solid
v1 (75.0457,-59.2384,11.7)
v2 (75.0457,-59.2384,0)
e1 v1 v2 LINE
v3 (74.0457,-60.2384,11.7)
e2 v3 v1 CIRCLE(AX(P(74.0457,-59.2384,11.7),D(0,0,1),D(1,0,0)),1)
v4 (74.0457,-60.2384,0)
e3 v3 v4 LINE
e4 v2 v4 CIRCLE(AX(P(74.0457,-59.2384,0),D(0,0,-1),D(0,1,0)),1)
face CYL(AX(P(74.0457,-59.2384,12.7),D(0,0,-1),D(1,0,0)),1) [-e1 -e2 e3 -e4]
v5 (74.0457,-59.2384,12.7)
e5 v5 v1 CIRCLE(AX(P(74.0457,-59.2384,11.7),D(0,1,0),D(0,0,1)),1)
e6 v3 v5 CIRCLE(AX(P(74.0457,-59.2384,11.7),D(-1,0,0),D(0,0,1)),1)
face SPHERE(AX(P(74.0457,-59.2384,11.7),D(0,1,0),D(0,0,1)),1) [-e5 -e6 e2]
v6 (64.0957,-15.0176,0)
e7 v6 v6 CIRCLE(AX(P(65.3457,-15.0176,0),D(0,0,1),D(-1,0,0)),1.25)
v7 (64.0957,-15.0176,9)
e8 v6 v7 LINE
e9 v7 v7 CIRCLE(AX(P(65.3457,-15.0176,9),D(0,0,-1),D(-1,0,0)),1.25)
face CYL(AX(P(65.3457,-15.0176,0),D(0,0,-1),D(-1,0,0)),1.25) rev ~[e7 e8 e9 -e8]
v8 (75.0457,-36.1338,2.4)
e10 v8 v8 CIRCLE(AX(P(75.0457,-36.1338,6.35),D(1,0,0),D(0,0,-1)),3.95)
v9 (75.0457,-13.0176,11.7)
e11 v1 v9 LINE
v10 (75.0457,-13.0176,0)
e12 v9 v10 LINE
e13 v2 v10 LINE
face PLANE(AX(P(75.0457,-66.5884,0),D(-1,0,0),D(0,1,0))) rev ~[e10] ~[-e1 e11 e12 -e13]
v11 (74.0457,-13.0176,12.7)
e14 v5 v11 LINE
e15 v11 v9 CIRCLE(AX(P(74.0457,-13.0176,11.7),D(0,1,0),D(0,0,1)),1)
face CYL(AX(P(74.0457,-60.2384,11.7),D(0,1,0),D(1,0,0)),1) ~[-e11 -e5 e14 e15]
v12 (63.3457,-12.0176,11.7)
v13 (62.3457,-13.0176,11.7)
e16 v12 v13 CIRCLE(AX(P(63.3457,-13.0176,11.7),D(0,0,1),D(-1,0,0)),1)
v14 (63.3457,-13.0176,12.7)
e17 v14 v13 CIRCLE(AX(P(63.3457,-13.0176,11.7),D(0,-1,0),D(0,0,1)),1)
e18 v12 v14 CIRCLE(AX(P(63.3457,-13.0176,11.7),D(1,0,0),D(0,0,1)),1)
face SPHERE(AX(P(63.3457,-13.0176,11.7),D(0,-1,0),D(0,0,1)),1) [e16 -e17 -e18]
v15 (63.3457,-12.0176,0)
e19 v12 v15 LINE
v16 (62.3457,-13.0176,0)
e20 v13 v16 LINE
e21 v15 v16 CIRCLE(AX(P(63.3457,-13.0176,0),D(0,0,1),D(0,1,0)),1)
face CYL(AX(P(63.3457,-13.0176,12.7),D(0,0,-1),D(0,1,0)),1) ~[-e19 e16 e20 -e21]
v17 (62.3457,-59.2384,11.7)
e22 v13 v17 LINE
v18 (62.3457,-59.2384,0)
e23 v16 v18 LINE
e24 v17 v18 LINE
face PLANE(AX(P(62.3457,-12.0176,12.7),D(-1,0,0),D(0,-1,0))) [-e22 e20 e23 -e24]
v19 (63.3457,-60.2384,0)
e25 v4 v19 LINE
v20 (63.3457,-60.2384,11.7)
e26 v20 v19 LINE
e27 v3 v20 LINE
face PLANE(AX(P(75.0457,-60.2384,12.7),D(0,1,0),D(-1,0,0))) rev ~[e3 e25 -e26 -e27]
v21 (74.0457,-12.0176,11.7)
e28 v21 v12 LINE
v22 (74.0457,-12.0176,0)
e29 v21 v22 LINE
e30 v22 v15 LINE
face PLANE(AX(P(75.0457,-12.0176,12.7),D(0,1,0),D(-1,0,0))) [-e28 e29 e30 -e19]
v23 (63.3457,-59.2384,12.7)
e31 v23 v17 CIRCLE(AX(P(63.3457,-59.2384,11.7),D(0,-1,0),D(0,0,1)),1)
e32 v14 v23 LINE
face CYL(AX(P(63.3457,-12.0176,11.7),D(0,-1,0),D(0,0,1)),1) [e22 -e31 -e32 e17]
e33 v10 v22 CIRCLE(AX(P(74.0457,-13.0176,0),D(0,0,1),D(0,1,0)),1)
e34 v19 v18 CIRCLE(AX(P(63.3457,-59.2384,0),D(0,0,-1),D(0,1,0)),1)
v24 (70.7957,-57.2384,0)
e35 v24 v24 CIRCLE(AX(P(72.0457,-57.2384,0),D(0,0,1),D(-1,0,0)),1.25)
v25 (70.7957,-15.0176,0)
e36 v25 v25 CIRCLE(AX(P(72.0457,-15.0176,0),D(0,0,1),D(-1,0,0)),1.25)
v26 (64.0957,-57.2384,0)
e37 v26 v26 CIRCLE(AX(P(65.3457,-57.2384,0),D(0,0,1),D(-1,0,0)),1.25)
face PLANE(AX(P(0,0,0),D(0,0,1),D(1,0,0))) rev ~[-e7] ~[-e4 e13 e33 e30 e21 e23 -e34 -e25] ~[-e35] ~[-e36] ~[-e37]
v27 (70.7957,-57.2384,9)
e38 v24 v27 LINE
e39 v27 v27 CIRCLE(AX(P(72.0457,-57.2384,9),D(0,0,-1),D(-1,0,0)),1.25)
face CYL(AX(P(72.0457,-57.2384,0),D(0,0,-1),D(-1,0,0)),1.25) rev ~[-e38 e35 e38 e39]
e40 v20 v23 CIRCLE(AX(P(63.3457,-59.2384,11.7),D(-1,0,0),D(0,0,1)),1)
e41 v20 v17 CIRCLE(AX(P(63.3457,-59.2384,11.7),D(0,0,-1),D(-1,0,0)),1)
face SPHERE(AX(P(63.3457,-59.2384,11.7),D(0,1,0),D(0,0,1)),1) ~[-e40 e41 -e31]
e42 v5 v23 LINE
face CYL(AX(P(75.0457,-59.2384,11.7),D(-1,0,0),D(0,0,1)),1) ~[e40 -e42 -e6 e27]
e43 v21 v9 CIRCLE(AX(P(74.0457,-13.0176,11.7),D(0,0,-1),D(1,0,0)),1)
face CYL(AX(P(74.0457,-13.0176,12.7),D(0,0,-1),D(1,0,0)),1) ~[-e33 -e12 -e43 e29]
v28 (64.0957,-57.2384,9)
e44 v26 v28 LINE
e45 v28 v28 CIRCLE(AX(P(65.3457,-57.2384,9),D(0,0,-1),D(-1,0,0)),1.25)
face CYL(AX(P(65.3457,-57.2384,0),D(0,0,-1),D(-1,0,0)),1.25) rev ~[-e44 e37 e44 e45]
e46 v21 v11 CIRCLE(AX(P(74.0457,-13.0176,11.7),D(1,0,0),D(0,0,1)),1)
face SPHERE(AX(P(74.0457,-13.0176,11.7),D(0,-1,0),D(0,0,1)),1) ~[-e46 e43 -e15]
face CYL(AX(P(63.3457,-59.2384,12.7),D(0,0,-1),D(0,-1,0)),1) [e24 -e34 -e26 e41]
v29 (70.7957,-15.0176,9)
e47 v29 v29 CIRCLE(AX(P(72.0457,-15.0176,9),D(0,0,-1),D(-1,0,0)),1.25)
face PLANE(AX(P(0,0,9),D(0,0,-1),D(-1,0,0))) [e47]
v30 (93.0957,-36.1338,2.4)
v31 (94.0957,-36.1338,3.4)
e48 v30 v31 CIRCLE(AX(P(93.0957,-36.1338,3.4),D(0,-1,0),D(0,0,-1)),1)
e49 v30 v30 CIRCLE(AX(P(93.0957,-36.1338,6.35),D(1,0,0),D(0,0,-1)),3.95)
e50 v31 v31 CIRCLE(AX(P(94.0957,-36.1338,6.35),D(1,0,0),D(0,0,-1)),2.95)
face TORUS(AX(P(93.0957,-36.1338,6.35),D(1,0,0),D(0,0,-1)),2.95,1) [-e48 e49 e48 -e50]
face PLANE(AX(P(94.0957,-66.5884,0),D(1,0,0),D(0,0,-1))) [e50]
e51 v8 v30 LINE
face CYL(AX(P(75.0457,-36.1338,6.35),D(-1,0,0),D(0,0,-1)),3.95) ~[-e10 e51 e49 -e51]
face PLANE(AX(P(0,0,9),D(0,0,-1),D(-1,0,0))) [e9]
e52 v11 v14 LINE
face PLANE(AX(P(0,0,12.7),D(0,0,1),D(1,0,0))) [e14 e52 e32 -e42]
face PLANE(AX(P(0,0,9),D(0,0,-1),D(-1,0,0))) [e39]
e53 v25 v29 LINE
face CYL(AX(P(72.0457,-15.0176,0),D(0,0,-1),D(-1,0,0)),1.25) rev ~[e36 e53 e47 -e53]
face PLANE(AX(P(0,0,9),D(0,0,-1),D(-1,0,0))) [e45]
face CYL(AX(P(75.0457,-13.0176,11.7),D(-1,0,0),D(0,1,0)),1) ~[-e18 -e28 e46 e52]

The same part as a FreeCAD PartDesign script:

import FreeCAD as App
import Part
import Sketcher
Q = App.Units.Quantity


def edges_at(feature, points):
    """Names of the edges that pass closest to the given points."""
    edges = feature.Shape.Edges
    near = lambda p: min(range(len(edges)), key=lambda i: edges[i].distToShape(Part.Vertex(*p))[0])
    return sorted({f"Edge{near(p) + 1}" for p in points})

doc = App.newDocument("Part")
params = doc.addObject("Spreadsheet::Sheet", "Params")
for row, (alias, value) in enumerate([
    ("sketch1_width", "19.05 mm"),
    ("pad1_length", "12.7 mm"),
    ("sketch2_diameter", "7.9 mm"),
    ("pad2_length", "19.05 mm"),
    ("sketch3_width", "12.7 mm"),
    ("sketch3_width2", "19.05 mm"),
    ("sketch3_height", "6.35 mm"),
    ("pocket1_length", "2540 mm"),
    ("fillet_radius", "1 mm"),
    ("fillet2_radius", "1 mm"),
    ("sketch4_diameter", "2.5 mm"),
    ("pocket2_length", "9 mm"),
], start=1):
    params.set(f"A{row}", alias)
    params.set(f"B{row}", "=" + value)
    params.setAlias(f"B{row}", alias)

body = doc.addObject("PartDesign::Body", "Body")

# Sketch on XY plane
sketch1 = body.newObject("Sketcher::SketchObject", "Sketch")
sketch1.AttachmentSupport = (doc.getObject("XY_Plane"), [""])
sketch1.MapMode = "FlatFace"
sketch1.addGeometry([
    Part.LineSegment(App.Vector(75, -67, 0), App.Vector(75, -6, 0)),
    Part.LineSegment(App.Vector(75, -6, 0), App.Vector(56, -6, 0)),
    Part.LineSegment(App.Vector(56, -6, 0), App.Vector(56, -67, 0)),
    Part.LineSegment(App.Vector(56, -67, 0), App.Vector(75, -67, 0)),
], False)
sketch1.addConstraint([
    Sketcher.Constraint("Coincident", 0, 2, 1, 1),
    Sketcher.Constraint("Coincident", 1, 2, 2, 1),
    Sketcher.Constraint("Coincident", 2, 2, 3, 1),
    Sketcher.Constraint("Coincident", 3, 2, 0, 1),
    Sketcher.Constraint("Vertical", 0),
    Sketcher.Constraint("Horizontal", 1),
    Sketcher.Constraint("Vertical", 2),
    Sketcher.Constraint("Horizontal", 3),
    Sketcher.Constraint("DistanceX", 1, 2, 1, 1, Q("19.05 mm")),
    Sketcher.Constraint("DistanceY", 0, 1, 0, 2, Q("60.9208 mm")),
    Sketcher.Constraint("DistanceX", -1, 1, 0, 2, Q("75.0457 mm")),
    Sketcher.Constraint("DistanceY", 0, 2, -1, 1, Q("5.6676 mm")),
])
sketch1.setExpression("Constraints[8]", "Params.sketch1_width")
pad1 = body.newObject("PartDesign::Pad", "Pad")
pad1.Profile = sketch1
pad1.setExpression("Length", "Params.pad1_length")

# Sketch on YZ plane
sketch2 = body.newObject("Sketcher::SketchObject", "Sketch001")
sketch2.AttachmentSupport = (doc.getObject("YZ_Plane"), [""])
sketch2.MapMode = "FlatFace"
sketch2.AttachmentOffset = App.Placement(App.Vector(0, 0, 75.0457), App.Rotation())
sketch2.addGeometry(Part.Circle(App.Vector(-36.1, 6.3, 0), App.Vector(0, 0, 1), 4), False)
sketch2.addConstraint([
    Sketcher.Constraint("Diameter", 0, Q("7.9 mm")),
    Sketcher.Constraint("DistanceY", -1, 1, 0, 3, Q("6.35 mm")),
    Sketcher.Constraint("DistanceX", 0, 3, -1, 1, Q("36.1338 mm")),
])
sketch2.setExpression("Constraints[0]", "Params.sketch2_diameter")
pad2 = body.newObject("PartDesign::Pad", "Pad001")
pad2.Profile = sketch2
pad2.setExpression("Length", "Params.pad2_length")

# Sketch on XY plane
sketch3 = body.newObject("Sketcher::SketchObject", "Sketch002")
sketch3.AttachmentSupport = (doc.getObject("XY_Plane"), [""])
sketch3.MapMode = "FlatFace"
sketch3.AttachmentOffset = App.Placement(App.Vector(0, 0, 12.7), App.Rotation())
sketch3.addGeometry([
    Part.LineSegment(App.Vector(75, -12, 0), App.Vector(75, -6, 0)),  # 0
    Part.LineSegment(App.Vector(75, -6, 0), App.Vector(56, -6, 0)),  # 1
    Part.LineSegment(App.Vector(56, -6, 0), App.Vector(56, -67, 0)),  # 2
    Part.LineSegment(App.Vector(56, -67, 0), App.Vector(75, -67, 0)),  # 3
    Part.LineSegment(App.Vector(75, -67, 0), App.Vector(75, -60, 0)),  # 4
    Part.LineSegment(App.Vector(75, -60, 0), App.Vector(62, -60, 0)),  # 5
    Part.LineSegment(App.Vector(62, -60, 0), App.Vector(62, -12, 0)),  # 6
    Part.LineSegment(App.Vector(62, -12, 0), App.Vector(75, -12, 0)),  # 7
], False)
sketch3.addConstraint([
    Sketcher.Constraint("Coincident", 0, 2, 1, 1),
    Sketcher.Constraint("Coincident", 1, 2, 2, 1),
    Sketcher.Constraint("Coincident", 2, 2, 3, 1),
    Sketcher.Constraint("Coincident", 3, 2, 4, 1),
    Sketcher.Constraint("Coincident", 4, 2, 5, 1),
    Sketcher.Constraint("Coincident", 5, 2, 6, 1),
    Sketcher.Constraint("Coincident", 6, 2, 7, 1),
    Sketcher.Constraint("Coincident", 7, 2, 0, 1),
    Sketcher.Constraint("Vertical", 0),
    Sketcher.Constraint("Horizontal", 1),
    Sketcher.Constraint("Vertical", 2),
    Sketcher.Constraint("Horizontal", 3),
    Sketcher.Constraint("Vertical", 4),
    Sketcher.Constraint("Horizontal", 5),
    Sketcher.Constraint("Vertical", 6),
    Sketcher.Constraint("Horizontal", 7),
    Sketcher.Constraint("Vertical", 0, 2, 3, 2),
    Sketcher.Constraint("Equal", 0, 4),
    Sketcher.Constraint("DistanceX", 5, 2, 5, 1, Q("12.7 mm")),
    Sketcher.Constraint("DistanceX", 1, 2, 1, 1, Q("19.05 mm")),
    Sketcher.Constraint("DistanceY", 0, 1, 0, 2, Q("6.35 mm")),
    Sketcher.Constraint("DistanceY", 2, 2, 2, 1, Q("60.9208 mm")),
    Sketcher.Constraint("DistanceX", -1, 1, 0, 2, Q("75.0457 mm")),
    Sketcher.Constraint("DistanceY", 0, 2, -1, 1, Q("5.6676 mm")),
])
sketch3.setExpression("Constraints[18]", "Params.sketch3_width")
sketch3.setExpression("Constraints[19]", "Params.sketch3_width2")
sketch3.setExpression("Constraints[20]", "Params.sketch3_height")
pocket1 = body.newObject("PartDesign::Pocket", "Pocket")
pocket1.Profile = sketch3
pocket1.setExpression("Length", "Params.pocket1_length")
doc.recompute()

fillet = body.newObject("PartDesign::Fillet", "Fillet")
fillet.Base = (pocket1, edges_at(pocket1, [
    (62.346, -36.128, 12.7),
    (75.046, -36.128, 12.7),
    (68.696, -60.238, 12.7),
    (68.696, -12.018, 12.7),
    (62.346, -12.018, 6.35),
    (62.346, -60.238, 6.35),
    (75.046, -60.238, 6.35),
    (75.046, -12.018, 6.35),
]))
fillet.setExpression("Radius", "Params.fillet_radius")
doc.recompute()

fillet2 = body.newObject("PartDesign::Fillet", "Fillet001")
fillet2.Base = (fillet, edges_at(fillet, [(94.096, -36.134, 10.3)]))
fillet2.setExpression("Radius", "Params.fillet2_radius")

# Sketch on XY plane
sketch4 = body.newObject("Sketcher::SketchObject", "Sketch003")
sketch4.AttachmentSupport = (doc.getObject("XY_Plane"), [""])
sketch4.MapMode = "FlatFace"
sketch4.addGeometry([
    Part.Circle(App.Vector(72, -15, 0), App.Vector(0, 0, 1), 1.2),
    Part.Circle(App.Vector(65.3, -15, 0), App.Vector(0, 0, 1), 1.2),
    Part.Circle(App.Vector(72, -57.2, 0), App.Vector(0, 0, 1), 1.2),
    Part.Circle(App.Vector(65.3, -57.2, 0), App.Vector(0, 0, 1), 1.2),
], False)
sketch4.addConstraint([
    Sketcher.Constraint("Equal", 0, 1),
    Sketcher.Constraint("Equal", 1, 2),
    Sketcher.Constraint("Equal", 2, 3),
    Sketcher.Constraint("Horizontal", 0, 3, 1, 3),
    Sketcher.Constraint("Horizontal", 2, 3, 3, 3),
    Sketcher.Constraint("Vertical", 0, 3, 2, 3),
    Sketcher.Constraint("Vertical", 1, 3, 3, 3),
    Sketcher.Constraint("Diameter", 0, Q("2.5 mm")),
    Sketcher.Constraint("DistanceX", 1, 3, 0, 3, Q("6.7 mm")),
    Sketcher.Constraint("DistanceX", -1, 1, 0, 3, Q("72.0457 mm")),
    Sketcher.Constraint("DistanceY", 0, 3, -1, 1, Q("15.0176 mm")),
    Sketcher.Constraint("DistanceY", 2, 3, -1, 1, Q("57.2384 mm")),
])
sketch4.setExpression("Constraints[7]", "Params.sketch4_diameter")
pocket2 = body.newObject("PartDesign::Pocket", "Pocket001")
pocket2.Profile = sketch4
pocket2.setExpression("Length", "Params.pocket2_length")
pocket2.Reversed = True

doc.recompute()
